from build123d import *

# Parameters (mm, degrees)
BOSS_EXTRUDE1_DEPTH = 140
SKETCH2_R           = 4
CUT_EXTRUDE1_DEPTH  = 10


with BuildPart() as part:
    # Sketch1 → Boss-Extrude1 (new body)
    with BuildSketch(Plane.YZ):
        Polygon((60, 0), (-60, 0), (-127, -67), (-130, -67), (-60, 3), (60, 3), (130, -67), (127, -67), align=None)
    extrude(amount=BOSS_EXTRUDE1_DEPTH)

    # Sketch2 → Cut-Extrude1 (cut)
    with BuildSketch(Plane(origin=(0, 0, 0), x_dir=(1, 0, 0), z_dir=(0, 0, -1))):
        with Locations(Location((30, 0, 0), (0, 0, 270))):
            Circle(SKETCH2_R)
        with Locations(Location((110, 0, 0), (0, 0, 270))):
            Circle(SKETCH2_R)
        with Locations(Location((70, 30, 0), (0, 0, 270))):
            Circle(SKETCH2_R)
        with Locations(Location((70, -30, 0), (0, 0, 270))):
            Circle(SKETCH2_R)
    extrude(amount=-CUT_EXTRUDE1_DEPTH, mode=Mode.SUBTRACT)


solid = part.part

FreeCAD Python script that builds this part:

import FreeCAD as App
import Part
import Sketcher
from FreeCAD import Vector

doc = App.newDocument("Part")
body = doc.addObject("PartDesign::Body", "Body")

# Sketch on YZ plane
sketch1 = doc.addObject("Sketcher::SketchObject", "Sketch")
body.addObject(sketch1)
sketch1.AttachmentSupport = (doc.YZ_Plane, [""])
sketch1.MapMode = "FlatFace"
sketch1.addGeometry([
    Part.LineSegment(Vector(-60, 0, 0), Vector(60, 0, 0)),  # 0
    Part.LineSegment(Vector(60, 0, 0), Vector(127, -67, 0)),  # 1
    Part.LineSegment(Vector(127, -67, 0), Vector(130, -67, 0)),  # 2
    Part.LineSegment(Vector(130, -67, 0), Vector(60, 3, 0)),  # 3
    Part.LineSegment(Vector(60, 3, 0), Vector(-60, 3, 0)),  # 4
    Part.LineSegment(Vector(-60, 3, 0), Vector(-130, -67, 0)),  # 5
    Part.LineSegment(Vector(-130, -67, 0), Vector(-127, -67, 0)),  # 6
    Part.LineSegment(Vector(-127, -67, 0), Vector(-60, 0, 0)),  # 7
], False)
sketch1.addConstraint([
    Sketcher.Constraint("Coincident", 0, 2, 1, 1),
    Sketcher.Constraint("Coincident", 1, 2, 2, 1),
    Sketcher.Constraint("Coincident", 2, 2, 3, 1),
    Sketcher.Constraint("Coincident", 3, 2, 4, 1),
    Sketcher.Constraint("Coincident", 4, 2, 5, 1),
    Sketcher.Constraint("Coincident", 5, 2, 6, 1),
    Sketcher.Constraint("Coincident", 6, 2, 7, 1),
    Sketcher.Constraint("Coincident", 7, 2, 0, 1),
    Sketcher.Constraint("Horizontal", 0),
    Sketcher.Constraint("Horizontal", 2),
    Sketcher.Constraint("Horizontal", 4),
    Sketcher.Constraint("Horizontal", 6),
    Sketcher.Constraint("Symmetric", 0, 2, 7, 2, -1, 1),
    Sketcher.Constraint("Symmetric", 2, 2, 5, 2, -2),
    Sketcher.Constraint("Parallel", 1, 3),
    Sketcher.Constraint("Perpendicular", 3, 5),
    Sketcher.Constraint("Parallel", 5, 7),
    Sketcher.Constraint("Vertical", 0, 2, 3, 2),
    Sketcher.Constraint("Vertical", 4, 2, 7, 2),
    Sketcher.Constraint("DistanceX", 0, 1, 0, 2, 120.0),
    Sketcher.Constraint("DistanceX", 2, 1, 2, 2, 3.0),
    Sketcher.Constraint("DistanceX", -1, 1, 1, 2, 127.0),
])
pad1 = doc.addObject("PartDesign::Pad", "Pad")
body.addObject(pad1)
pad1.Profile = sketch1
pad1.Length = 140

# Sketch on XY plane
sketch2 = doc.addObject("Sketcher::SketchObject", "Sketch001")
body.addObject(sketch2)
sketch2.AttachmentSupport = (doc.XY_Plane, [""])
sketch2.MapMode = "FlatFace"
sketch2.addGeometry([
    Part.Circle(Vector(30, 0, 0), Vector(0, 0, 1), 4),
    Part.Circle(Vector(110, 0, 0), Vector(0, 0, 1), 4),
    Part.Circle(Vector(70, -30, 0), Vector(0, 0, 1), 4),
    Part.Circle(Vector(70, 30, 0), Vector(0, 0, 1), 4),
], False)
sketch2.addConstraint([
    Sketcher.Constraint("Equal", 0, 1),
    Sketcher.Constraint("Equal", 1, 2),
    Sketcher.Constraint("Equal", 2, 3),
    Sketcher.Constraint("Symmetric", 2, 3, 3, 3, -1),
    Sketcher.Constraint("PointOnObject", 0, 3, -1),
    Sketcher.Constraint("PointOnObject", 1, 3, -1),
    Sketcher.Constraint("Diameter", 0, 8.0),
    Sketcher.Constraint("DistanceX", -1, 1, 0, 3, 30.0),
    Sketcher.Constraint("DistanceX", -1, 1, 1, 3, 110.0),
    Sketcher.Constraint("DistanceX", -1, 1, 2, 3, 70.0),
    Sketcher.Constraint("DistanceY", 2, 3, -1, 1, 30.0),
])
pocket1 = doc.addObject("PartDesign::Pocket", "Pocket")
body.addObject(pocket1)
pocket1.Profile = sketch2
pocket1.Length = 10
pocket1.Reversed = True

doc.recompute()
